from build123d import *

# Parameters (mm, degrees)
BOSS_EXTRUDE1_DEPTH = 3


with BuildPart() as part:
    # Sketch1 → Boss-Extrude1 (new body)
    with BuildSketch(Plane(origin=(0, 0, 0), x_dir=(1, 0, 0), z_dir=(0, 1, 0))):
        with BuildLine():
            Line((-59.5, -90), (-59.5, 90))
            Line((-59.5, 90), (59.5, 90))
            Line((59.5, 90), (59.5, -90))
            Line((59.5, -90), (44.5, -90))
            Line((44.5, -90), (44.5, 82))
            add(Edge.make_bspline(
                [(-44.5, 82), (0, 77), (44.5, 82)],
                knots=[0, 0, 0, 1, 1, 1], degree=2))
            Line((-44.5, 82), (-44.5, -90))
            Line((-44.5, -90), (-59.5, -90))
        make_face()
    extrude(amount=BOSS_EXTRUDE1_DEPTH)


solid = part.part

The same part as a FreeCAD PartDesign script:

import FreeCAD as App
import Part
import Sketcher
Q = App.Units.Quantity

doc = App.newDocument("Part")
body = doc.addObject("PartDesign::Body", "Body")

# Sketch on XZ plane
sketch1 = body.newObject("Sketcher::SketchObject", "Sketch")
sketch1.AttachmentSupport = (doc.getObject("XZ_Plane"), [""])
sketch1.MapMode = "FlatFace"
sketch1.addGeometry([
    Part.LineSegment(App.Vector(-59.5, -90, 0), App.Vector(-59.5, 90, 0)),  # 0
    Part.LineSegment(App.Vector(-59.5, 90, 0), App.Vector(-44.5, 90, 0)),  # 1
    Part.LineSegment(App.Vector(-44.5, 90, 0), App.Vector(-44.5, -82, 0)),  # 2
    Part.BSplineCurve([App.Vector(-44.5, -82, 0), App.Vector(0, -77, 0), App.Vector(44.5, -82, 0)], [3, 3], [0, 1], False, 2, [1, 1, 1], False),  # 3
    Part.LineSegment(App.Vector(44.5, -82, 0), App.Vector(44.5, 90, 0)),  # 4
    Part.LineSegment(App.Vector(44.5, 90, 0), App.Vector(59.5, 90, 0)),  # 5
    Part.LineSegment(App.Vector(59.5, 90, 0), App.Vector(59.5, -90, 0)),  # 6
    Part.LineSegment(App.Vector(59.5, -90, 0), App.Vector(-59.5, -90, 0)),  # 7
], False)
sketch1.addConstraint([
    Sketcher.Constraint("Block", 3),
    Sketcher.Constraint("Coincident", 0, 2, 1, 1),
    Sketcher.Constraint("Coincident", 1, 2, 2, 1),
    Sketcher.Constraint("Coincident", 2, 2, 3, 1),
    Sketcher.Constraint("Coincident", 3, 2, 4, 1),
    Sketcher.Constraint("Coincident", 4, 2, 5, 1),
    Sketcher.Constraint("Coincident", 5, 2, 6, 1),
    Sketcher.Constraint("Coincident", 6, 2, 7, 1),
    Sketcher.Constraint("Coincident", 7, 2, 0, 1),
    Sketcher.Constraint("Vertical", 0),
    Sketcher.Constraint("Horizontal", 1),
    Sketcher.Constraint("Vertical", 2),
    Sketcher.Constraint("Vertical", 4),
    Sketcher.Constraint("Horizontal", 5),
    Sketcher.Constraint("Vertical", 6),
    Sketcher.Constraint("Horizontal", 7),
    Sketcher.Constraint("Symmetric", 0, 2, 6, 2, -1, 1),
    Sketcher.Constraint("Horizontal", 1, 2, 4, 2),
    Sketcher.Constraint("DistanceX", 1, 1, 1, 2, Q("15 mm")),
    Sketcher.Constraint("DistanceY", 0, 1, 0, 2, Q("180 mm")),
])
pad1 = body.newObject("PartDesign::Pad", "Pad")
pad1.Profile = sketch1
pad1.Length = 3
pad1.Reversed = True

doc.recompute()
